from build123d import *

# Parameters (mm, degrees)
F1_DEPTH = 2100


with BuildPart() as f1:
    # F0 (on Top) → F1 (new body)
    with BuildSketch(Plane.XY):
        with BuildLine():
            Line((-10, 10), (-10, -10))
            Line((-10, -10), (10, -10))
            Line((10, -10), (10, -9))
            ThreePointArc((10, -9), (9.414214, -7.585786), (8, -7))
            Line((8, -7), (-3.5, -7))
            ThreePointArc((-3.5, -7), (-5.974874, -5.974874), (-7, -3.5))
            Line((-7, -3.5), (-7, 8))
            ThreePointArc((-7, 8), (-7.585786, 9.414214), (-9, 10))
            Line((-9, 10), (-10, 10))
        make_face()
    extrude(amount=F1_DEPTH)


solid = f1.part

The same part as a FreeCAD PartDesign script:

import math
import FreeCAD as App
import Part
import Sketcher
from FreeCAD import Vector
Q = App.Units.Quantity

doc = App.newDocument("Part")
params = doc.addObject("Spreadsheet::Sheet", "Params")
for row, (alias, value) in enumerate([
    ("sketch1_radius", "1.999999 mm"),
    ("sketch1_radius2", "3.499999 mm"),
    ("sketch1_width", "20 mm"),
    ("sketch1_width2", "1 mm"),
    ("pad1_length", "2100 mm"),
], start=1):
    params.set(f"A{row}", alias)
    params.set(f"B{row}", "=" + value)
    params.setAlias(f"B{row}", alias)

body = doc.addObject("PartDesign::Body", "Body")

# Sketch on XY plane
sketch1 = body.newObject("Sketcher::SketchObject", "Sketch")
sketch1.AttachmentSupport = (doc.getObject("XY_Plane"), [""])
sketch1.MapMode = "FlatFace"
sketch1.addGeometry(Part.LineSegment(Vector(-10, 10, 0), Vector(-10, -10, 0)), False)
sketch1.addGeometry(Part.LineSegment(Vector(-10, -10, 0), Vector(10, -10, 0)), False)
sketch1.addGeometry(Part.LineSegment(Vector(10, -10, 0), Vector(10, -9, 0)), False)
sketch1.addGeometry(Part.ArcOfCircle(Part.Circle(Vector(8, -9, 0), Vector(0, 0, 1), 2), math.radians(0), math.radians(90)), False)
sketch1.addGeometry(Part.LineSegment(Vector(8, -7, 0), Vector(-3.5, -7, 0)), False)
sketch1.addGeometry(Part.ArcOfCircle(Part.Circle(Vector(-3.5, -3.5, 0), Vector(0, 0, 1), 3.5), math.radians(180), math.radians(270)), False)
sketch1.addGeometry(Part.LineSegment(Vector(-7, -3.5, 0), Vector(-7, 8, 0)), False)
sketch1.addGeometry(Part.ArcOfCircle(Part.Circle(Vector(-9, 8, 0), Vector(0, 0, 1), 2), math.radians(0), math.radians(90)), False)
sketch1.addGeometry(Part.LineSegment(Vector(-9, 10, 0), Vector(-10, 10, 0)), False)
sketch1.addConstraint(Sketcher.Constraint("Coincident", 0, 2, 1, 1))
sketch1.addConstraint(Sketcher.Constraint("Coincident", 1, 2, 2, 1))
sketch1.addConstraint(Sketcher.Constraint("Tangent", 2, 2, 3, 1))
sketch1.addConstraint(Sketcher.Constraint("Tangent", 3, 2, 4, 1))
sketch1.addConstraint(Sketcher.Constraint("Tangent", 4, 2, 5, 2))
sketch1.addConstraint(Sketcher.Constraint("Tangent", 5, 1, 6, 1))
sketch1.addConstraint(Sketcher.Constraint("Tangent", 6, 2, 7, 1))
sketch1.addConstraint(Sketcher.Constraint("Tangent", 7, 2, 8, 1))
sketch1.addConstraint(Sketcher.Constraint("Coincident", 8, 2, 0, 1))
sketch1.addConstraint(Sketcher.Constraint("Vertical", 0))
sketch1.addConstraint(Sketcher.Constraint("Horizontal", 1))
sketch1.addConstraint(Sketcher.Constraint("Vertical", 2))
sketch1.addConstraint(Sketcher.Constraint("Horizontal", 4))
sketch1.addConstraint(Sketcher.Constraint("Vertical", 6))
sketch1.addConstraint(Sketcher.Constraint("Horizontal", 8))
sketch1.addConstraint(Sketcher.Constraint("Equal", 3, 7))
sketch1.addConstraint(Sketcher.Constraint("Symmetric", 1, 2, 8, 2, -1, 1))
sketch1.addConstraint(Sketcher.Constraint("Equal", 1, 0))
sketch1.addConstraint(Sketcher.Constraint("Equal", 8, 2))
sketch1.addConstraint(Sketcher.Constraint("Radius", 3, Q("1.999999 mm")))
sketch1.addConstraint(Sketcher.Constraint("Radius", 5, Q("3.499999 mm")))
sketch1.addConstraint(Sketcher.Constraint("DistanceX", 1, 1, 1, 2, Q("20 mm")))
sketch1.addConstraint(Sketcher.Constraint("DistanceX", 8, 2, 8, 1, Q("1 mm")))
sketch1.setExpression("Constraints[19]", "Params.sketch1_radius")
sketch1.setExpression("Constraints[20]", "Params.sketch1_radius2")
sketch1.setExpression("Constraints[21]", "Params.sketch1_width")
sketch1.setExpression("Constraints[22]", "Params.sketch1_width2")
pad1 = body.newObject("PartDesign::Pad", "Pad")
pad1.Profile = sketch1
pad1.setExpression("Length", "Params.pad1_length")

doc.recompute()
